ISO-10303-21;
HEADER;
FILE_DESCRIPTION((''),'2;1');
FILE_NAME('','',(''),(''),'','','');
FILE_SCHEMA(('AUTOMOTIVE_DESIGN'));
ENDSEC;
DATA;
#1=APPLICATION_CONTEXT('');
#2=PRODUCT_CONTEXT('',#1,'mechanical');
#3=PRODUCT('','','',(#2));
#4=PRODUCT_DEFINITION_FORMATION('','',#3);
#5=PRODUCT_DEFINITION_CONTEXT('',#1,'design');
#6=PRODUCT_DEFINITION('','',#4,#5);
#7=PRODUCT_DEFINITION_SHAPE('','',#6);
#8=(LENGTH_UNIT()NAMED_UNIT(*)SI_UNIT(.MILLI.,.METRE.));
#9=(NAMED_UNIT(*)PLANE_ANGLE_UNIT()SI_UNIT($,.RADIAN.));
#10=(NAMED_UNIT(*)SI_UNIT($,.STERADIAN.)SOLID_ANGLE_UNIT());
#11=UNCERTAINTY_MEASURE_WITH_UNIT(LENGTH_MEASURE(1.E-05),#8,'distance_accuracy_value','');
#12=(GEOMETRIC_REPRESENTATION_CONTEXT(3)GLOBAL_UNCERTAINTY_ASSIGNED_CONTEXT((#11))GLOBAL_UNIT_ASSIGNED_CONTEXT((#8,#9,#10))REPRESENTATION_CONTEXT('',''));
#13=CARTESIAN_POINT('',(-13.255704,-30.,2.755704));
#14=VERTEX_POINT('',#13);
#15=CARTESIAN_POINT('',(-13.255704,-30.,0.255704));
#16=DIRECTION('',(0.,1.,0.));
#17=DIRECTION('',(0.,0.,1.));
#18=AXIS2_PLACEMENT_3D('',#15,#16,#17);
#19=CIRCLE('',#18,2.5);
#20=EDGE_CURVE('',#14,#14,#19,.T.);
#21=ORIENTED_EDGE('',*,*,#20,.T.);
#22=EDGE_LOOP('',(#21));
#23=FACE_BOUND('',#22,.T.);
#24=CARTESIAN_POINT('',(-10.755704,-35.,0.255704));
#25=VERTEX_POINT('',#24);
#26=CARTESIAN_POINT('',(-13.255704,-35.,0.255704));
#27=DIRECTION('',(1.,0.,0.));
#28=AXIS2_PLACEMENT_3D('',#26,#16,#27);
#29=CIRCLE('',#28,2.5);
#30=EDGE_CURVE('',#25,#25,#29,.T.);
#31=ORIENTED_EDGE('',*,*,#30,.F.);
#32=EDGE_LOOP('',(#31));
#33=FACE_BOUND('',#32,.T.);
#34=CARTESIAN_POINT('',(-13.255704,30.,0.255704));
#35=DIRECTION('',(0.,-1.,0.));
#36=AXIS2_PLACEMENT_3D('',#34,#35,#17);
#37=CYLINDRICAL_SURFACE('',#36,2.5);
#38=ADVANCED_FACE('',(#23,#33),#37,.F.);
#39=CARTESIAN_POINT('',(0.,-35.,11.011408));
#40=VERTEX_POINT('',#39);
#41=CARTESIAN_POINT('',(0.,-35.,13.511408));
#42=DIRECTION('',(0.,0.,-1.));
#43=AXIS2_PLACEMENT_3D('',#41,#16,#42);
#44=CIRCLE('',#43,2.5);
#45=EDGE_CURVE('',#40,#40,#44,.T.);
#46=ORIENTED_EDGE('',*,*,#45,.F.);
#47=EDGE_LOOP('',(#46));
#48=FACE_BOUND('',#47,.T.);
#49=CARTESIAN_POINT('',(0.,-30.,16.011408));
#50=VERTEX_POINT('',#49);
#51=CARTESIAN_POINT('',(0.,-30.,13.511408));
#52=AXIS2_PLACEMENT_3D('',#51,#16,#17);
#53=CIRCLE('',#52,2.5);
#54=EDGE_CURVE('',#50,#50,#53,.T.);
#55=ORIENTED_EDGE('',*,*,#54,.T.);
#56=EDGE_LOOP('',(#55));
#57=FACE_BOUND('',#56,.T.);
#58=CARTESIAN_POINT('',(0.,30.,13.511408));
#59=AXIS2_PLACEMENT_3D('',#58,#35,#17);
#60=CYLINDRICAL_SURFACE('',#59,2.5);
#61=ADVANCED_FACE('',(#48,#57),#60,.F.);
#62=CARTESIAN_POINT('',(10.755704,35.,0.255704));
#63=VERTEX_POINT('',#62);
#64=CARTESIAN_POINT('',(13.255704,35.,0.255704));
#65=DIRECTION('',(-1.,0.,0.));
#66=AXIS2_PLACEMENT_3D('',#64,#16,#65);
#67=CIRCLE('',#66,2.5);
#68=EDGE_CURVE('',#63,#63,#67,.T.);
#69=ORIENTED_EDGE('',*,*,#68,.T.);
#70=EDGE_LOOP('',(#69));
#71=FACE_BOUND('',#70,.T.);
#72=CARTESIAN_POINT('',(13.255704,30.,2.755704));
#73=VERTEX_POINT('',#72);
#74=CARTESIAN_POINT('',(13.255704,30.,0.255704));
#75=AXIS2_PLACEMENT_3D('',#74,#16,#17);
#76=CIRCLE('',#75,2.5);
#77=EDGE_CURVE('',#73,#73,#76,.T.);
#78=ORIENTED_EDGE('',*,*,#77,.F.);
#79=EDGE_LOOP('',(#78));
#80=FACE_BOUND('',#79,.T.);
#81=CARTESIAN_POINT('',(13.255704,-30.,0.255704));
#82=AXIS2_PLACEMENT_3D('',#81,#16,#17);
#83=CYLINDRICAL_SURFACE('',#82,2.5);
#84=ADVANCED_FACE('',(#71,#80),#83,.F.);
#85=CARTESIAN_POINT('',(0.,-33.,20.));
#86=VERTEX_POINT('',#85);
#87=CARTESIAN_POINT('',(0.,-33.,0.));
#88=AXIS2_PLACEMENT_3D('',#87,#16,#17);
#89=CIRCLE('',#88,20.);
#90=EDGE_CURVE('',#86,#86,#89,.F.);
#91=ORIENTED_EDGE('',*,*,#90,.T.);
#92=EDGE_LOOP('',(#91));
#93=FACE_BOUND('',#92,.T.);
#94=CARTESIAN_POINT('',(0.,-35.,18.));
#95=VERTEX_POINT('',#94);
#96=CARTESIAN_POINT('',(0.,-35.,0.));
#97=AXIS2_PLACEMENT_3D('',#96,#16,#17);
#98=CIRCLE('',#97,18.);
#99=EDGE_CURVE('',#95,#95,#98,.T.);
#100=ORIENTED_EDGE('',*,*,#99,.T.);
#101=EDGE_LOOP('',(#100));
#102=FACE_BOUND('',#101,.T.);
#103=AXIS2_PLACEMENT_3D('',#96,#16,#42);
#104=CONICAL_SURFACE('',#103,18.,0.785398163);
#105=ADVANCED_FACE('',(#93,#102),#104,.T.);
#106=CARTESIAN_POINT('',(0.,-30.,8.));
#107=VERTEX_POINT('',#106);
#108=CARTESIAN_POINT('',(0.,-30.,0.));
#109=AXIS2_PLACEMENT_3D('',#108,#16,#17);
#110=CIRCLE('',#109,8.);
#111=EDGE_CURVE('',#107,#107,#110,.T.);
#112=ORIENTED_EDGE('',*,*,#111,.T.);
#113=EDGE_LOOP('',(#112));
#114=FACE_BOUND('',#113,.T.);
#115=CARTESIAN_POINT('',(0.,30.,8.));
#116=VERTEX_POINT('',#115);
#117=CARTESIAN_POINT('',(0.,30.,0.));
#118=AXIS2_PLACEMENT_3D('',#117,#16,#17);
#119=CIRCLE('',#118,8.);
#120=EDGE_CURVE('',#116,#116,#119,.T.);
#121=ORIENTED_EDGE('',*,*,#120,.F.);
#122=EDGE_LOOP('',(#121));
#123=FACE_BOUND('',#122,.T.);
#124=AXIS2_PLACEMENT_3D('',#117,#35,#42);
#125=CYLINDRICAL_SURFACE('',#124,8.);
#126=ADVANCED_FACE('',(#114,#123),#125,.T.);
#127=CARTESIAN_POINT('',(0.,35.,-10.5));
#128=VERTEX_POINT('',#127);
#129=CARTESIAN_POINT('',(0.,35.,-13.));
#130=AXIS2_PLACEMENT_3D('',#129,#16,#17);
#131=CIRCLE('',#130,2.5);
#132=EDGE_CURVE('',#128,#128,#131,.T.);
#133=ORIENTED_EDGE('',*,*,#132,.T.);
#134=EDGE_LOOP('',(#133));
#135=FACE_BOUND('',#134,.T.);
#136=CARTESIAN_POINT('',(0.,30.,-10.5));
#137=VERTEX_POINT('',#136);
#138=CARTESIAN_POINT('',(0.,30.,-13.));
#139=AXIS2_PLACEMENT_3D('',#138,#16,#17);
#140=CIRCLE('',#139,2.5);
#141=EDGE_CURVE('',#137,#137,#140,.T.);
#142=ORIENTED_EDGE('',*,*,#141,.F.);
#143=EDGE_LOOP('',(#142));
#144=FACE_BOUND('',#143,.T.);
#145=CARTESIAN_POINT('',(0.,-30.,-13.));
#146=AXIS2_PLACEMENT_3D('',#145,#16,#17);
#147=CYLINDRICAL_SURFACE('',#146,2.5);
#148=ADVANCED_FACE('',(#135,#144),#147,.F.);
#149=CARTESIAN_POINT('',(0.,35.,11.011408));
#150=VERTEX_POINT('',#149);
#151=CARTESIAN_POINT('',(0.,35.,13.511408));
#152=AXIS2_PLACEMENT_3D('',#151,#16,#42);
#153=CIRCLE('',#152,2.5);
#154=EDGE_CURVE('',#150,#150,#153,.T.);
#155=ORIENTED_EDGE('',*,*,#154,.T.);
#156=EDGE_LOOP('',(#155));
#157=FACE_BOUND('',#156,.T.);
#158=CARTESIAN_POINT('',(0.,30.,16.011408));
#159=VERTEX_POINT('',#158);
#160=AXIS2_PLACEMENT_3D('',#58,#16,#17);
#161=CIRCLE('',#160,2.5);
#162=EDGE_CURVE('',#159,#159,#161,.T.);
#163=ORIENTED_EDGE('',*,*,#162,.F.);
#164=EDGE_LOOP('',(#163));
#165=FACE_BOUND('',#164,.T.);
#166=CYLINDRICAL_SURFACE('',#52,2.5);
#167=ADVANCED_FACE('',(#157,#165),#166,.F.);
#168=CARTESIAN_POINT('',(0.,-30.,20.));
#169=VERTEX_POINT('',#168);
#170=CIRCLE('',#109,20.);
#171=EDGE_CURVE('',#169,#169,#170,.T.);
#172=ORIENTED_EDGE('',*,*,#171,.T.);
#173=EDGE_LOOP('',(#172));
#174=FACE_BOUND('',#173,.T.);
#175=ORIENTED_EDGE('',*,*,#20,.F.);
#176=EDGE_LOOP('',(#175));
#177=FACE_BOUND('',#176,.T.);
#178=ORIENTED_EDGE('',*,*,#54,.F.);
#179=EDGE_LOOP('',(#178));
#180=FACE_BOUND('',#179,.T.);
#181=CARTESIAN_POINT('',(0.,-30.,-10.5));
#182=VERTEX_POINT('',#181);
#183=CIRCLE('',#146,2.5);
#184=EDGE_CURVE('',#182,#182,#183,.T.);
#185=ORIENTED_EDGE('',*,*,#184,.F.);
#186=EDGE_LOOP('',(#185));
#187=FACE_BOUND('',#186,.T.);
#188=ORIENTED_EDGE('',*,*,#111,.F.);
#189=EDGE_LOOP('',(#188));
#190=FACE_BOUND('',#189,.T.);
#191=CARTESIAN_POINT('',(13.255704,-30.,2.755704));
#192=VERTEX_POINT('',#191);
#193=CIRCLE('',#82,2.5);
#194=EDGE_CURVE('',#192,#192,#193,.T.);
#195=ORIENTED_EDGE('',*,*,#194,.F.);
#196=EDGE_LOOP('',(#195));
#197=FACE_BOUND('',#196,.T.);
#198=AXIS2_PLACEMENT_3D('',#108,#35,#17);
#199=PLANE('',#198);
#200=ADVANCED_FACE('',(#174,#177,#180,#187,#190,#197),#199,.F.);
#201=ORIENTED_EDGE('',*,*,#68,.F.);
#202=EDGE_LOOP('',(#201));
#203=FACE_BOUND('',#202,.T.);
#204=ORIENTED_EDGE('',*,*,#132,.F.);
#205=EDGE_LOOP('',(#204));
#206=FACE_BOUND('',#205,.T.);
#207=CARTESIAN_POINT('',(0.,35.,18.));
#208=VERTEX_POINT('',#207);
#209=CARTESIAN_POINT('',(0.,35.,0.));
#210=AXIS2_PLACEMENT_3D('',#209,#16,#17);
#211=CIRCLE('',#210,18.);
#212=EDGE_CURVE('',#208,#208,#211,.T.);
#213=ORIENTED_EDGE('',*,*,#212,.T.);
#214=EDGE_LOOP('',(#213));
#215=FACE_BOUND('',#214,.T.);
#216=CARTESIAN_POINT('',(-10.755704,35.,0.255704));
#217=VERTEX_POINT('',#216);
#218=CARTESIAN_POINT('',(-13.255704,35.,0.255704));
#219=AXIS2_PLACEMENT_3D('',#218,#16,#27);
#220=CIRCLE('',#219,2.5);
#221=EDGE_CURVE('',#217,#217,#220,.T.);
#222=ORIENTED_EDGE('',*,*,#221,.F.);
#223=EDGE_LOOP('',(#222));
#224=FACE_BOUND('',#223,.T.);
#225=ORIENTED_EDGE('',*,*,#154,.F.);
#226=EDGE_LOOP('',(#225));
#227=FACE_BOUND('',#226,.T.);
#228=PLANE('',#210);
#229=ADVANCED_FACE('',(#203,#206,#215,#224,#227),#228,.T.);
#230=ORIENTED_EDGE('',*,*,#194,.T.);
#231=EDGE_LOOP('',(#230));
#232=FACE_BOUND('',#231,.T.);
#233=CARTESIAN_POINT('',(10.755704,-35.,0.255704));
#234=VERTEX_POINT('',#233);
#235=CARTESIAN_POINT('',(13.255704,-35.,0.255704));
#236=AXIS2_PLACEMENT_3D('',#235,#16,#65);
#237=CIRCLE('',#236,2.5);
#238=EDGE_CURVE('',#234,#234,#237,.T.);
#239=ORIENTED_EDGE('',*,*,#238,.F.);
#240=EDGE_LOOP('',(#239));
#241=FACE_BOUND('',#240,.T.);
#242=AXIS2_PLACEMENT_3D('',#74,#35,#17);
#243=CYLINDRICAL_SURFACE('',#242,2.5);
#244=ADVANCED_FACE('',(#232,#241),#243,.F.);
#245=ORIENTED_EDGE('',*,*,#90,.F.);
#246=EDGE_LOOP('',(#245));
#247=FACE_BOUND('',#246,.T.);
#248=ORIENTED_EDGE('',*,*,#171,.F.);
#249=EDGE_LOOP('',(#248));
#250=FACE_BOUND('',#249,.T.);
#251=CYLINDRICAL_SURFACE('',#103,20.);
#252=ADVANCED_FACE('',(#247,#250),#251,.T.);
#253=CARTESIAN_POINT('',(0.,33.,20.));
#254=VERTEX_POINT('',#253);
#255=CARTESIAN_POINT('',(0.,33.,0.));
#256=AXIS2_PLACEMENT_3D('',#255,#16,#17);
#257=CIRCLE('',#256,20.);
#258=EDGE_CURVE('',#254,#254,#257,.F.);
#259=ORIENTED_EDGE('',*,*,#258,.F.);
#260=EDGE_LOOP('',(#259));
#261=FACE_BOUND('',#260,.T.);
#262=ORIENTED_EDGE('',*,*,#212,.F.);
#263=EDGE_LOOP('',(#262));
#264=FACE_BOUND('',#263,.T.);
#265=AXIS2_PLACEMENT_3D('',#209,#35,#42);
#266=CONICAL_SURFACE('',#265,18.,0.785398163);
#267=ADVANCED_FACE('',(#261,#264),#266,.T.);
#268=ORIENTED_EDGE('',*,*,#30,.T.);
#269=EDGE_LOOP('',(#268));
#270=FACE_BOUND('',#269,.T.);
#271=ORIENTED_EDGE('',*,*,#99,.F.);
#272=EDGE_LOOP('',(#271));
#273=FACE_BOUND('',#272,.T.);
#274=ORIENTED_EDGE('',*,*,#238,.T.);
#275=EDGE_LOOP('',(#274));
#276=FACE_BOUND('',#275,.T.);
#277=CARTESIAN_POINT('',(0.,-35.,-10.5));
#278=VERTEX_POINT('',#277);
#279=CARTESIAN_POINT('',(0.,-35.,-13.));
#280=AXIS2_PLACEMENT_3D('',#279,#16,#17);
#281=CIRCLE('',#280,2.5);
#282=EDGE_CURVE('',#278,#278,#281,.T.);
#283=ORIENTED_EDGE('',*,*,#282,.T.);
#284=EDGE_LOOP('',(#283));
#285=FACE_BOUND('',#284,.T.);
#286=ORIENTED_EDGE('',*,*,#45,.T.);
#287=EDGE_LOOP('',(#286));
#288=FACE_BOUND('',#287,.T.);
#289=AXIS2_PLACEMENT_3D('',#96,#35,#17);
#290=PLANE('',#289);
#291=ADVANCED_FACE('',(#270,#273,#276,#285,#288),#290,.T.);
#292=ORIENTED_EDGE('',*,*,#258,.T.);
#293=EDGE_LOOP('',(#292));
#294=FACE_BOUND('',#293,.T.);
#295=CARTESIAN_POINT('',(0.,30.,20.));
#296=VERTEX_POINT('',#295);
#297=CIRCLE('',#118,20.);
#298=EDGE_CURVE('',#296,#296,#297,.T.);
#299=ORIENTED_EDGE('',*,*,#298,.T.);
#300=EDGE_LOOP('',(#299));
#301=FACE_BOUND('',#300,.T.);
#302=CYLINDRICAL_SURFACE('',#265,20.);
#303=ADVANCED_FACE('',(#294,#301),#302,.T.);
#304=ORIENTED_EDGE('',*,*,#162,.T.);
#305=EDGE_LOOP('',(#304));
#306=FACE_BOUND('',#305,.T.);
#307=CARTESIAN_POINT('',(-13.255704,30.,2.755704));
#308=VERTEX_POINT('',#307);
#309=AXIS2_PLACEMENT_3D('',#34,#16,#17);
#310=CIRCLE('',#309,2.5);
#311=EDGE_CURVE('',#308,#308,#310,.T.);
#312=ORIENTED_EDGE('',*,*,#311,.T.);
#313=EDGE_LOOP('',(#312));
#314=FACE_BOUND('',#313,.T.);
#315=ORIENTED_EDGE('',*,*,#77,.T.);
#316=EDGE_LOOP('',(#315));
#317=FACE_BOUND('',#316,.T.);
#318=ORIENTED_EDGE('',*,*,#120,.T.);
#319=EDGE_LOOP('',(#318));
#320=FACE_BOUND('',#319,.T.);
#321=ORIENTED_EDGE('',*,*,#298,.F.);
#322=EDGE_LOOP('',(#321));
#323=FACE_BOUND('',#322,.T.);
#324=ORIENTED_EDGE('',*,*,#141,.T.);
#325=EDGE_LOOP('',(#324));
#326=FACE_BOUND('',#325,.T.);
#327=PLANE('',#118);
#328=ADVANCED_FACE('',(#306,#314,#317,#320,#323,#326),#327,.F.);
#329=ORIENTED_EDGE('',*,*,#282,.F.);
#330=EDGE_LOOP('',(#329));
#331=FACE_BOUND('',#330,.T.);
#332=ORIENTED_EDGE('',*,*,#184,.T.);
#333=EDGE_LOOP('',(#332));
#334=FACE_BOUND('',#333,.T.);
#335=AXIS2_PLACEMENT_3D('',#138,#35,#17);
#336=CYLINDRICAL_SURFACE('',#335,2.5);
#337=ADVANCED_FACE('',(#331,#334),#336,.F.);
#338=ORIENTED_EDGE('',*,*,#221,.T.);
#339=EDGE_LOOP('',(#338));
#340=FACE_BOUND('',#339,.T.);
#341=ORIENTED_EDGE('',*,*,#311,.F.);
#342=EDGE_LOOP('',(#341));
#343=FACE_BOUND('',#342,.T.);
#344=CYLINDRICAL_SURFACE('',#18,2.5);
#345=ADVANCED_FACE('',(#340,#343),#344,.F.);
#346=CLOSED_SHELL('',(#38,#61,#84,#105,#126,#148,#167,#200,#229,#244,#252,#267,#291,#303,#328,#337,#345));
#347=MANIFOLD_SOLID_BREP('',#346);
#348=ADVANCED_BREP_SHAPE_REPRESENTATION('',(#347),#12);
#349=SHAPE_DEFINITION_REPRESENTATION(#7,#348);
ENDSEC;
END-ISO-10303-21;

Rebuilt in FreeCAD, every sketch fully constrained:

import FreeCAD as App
import Part
import Sketcher
Q = App.Units.Quantity


def edges_at(feature, points):
    """Names of the edges that pass closest to the given points."""
    edges = feature.Shape.Edges
    near = lambda p: min(range(len(edges)), key=lambda i: edges[i].distToShape(Part.Vertex(*p))[0])
    return sorted({f"Edge{near(p) + 1}" for p in points})

doc = App.newDocument("Part")
body = doc.addObject("PartDesign::Body", "Body")

# Sketch on XZ plane
sketch1 = body.newObject("Sketcher::SketchObject", "Sketch")
sketch1.AttachmentSupport = (doc.getObject("XZ_Plane"), [""])
sketch1.MapMode = "FlatFace"
sketch1.addGeometry(Part.Circle(App.Vector(0, 0, 0), App.Vector(0, 0, 1), 8), False)
sketch1.addConstraint(Sketcher.Constraint("Coincident", 0, 3, -1, 1))
sketch1.addConstraint(Sketcher.Constraint("Diameter", 0, Q("16 mm")))
pad1 = body.newObject("PartDesign::Pad", "Pad")
pad1.Profile = sketch1
pad1.Length = 60
pad1.Midplane = True

# Sketch on XZ plane
sketch2 = body.newObject("Sketcher::SketchObject", "Sketch001")
sketch2.AttachmentSupport = (doc.getObject("XZ_Plane"), [""])
sketch2.MapMode = "FlatFace"
sketch2.AttachmentOffset = App.Placement(App.Vector(0, 0, -30), App.Rotation())
sketch2.addGeometry(Part.Circle(App.Vector(0, 0, 0), App.Vector(0, 0, 1), 20), False)
sketch2.addConstraint(Sketcher.Constraint("Coincident", 0, 3, -1, 1))
sketch2.addConstraint(Sketcher.Constraint("Diameter", 0, Q("40 mm")))
pad2 = body.newObject("PartDesign::Pad", "Pad001")
pad2.Profile = sketch2
pad2.Length = 5
pad2.Reversed = True
doc.recompute()

chamfer = body.newObject("PartDesign::Chamfer", "Chamfer")
chamfer.Base = (pad2, edges_at(pad2, [(0, 35, -20)]))
chamfer.Size = 2

# Sketch on XZ plane
sketch3 = body.newObject("Sketcher::SketchObject", "Sketch002")
sketch3.AttachmentSupport = (doc.getObject("XZ_Plane"), [""])
sketch3.MapMode = "FlatFace"
sketch3.AttachmentOffset = App.Placement(App.Vector(0, 0, -35), App.Rotation())
sketch3.addGeometry(Part.Circle(App.Vector(0, -13, 0), App.Vector(0, 0, 1), 2.5), False)
sketch3.addConstraint(Sketcher.Constraint("PointOnObject", 0, 3, -2))
sketch3.addConstraint(Sketcher.Constraint("Diameter", 0, Q("5 mm")))
sketch3.addConstraint(Sketcher.Constraint("DistanceY", 0, 3, -1, 1, Q("13 mm")))
pocket1 = body.newObject("PartDesign::Pocket", "Pocket")
pocket1.Profile = sketch3
pocket1.Type = "ThroughAll"
pocket1.Reversed = True
doc.recompute()

datumline = body.newObject("PartDesign::Line", "DatumLine")
datumline.Placement = App.Placement(App.Vector(0, 0, 0.255704), App.Rotation(App.Vector(0, 0, 1), App.Vector(0, 1, 0)))
polarpattern = body.newObject("PartDesign::PolarPattern", "PolarPattern")
polarpattern.Originals = [pocket1]
polarpattern.Axis = (datumline, [""])
polarpattern.Angle = 360
polarpattern.Occurrences = 4
body.Tip = polarpattern
body2 = doc.addObject("PartDesign::Body", "Body001")
doc.recompute()

body2.BaseFeature = body
doc.recompute()

mirroring = doc.addObject("Part::Mirroring", "Mirroring")
mirroring.Source = body
mirroring.Base = App.Vector(0, 0, 0)
mirroring.Normal = App.Vector(0, 1, 0)
body3 = doc.addObject("PartDesign::Body", "Body002")
body3.BaseFeature = mirroring
boolean = body2.newObject("PartDesign::Boolean", "Boolean")
boolean.Type = "Fuse"
boolean.addObjects([body3])
doc.recompute()
mirroring.Visibility = False

doc.recompute()
